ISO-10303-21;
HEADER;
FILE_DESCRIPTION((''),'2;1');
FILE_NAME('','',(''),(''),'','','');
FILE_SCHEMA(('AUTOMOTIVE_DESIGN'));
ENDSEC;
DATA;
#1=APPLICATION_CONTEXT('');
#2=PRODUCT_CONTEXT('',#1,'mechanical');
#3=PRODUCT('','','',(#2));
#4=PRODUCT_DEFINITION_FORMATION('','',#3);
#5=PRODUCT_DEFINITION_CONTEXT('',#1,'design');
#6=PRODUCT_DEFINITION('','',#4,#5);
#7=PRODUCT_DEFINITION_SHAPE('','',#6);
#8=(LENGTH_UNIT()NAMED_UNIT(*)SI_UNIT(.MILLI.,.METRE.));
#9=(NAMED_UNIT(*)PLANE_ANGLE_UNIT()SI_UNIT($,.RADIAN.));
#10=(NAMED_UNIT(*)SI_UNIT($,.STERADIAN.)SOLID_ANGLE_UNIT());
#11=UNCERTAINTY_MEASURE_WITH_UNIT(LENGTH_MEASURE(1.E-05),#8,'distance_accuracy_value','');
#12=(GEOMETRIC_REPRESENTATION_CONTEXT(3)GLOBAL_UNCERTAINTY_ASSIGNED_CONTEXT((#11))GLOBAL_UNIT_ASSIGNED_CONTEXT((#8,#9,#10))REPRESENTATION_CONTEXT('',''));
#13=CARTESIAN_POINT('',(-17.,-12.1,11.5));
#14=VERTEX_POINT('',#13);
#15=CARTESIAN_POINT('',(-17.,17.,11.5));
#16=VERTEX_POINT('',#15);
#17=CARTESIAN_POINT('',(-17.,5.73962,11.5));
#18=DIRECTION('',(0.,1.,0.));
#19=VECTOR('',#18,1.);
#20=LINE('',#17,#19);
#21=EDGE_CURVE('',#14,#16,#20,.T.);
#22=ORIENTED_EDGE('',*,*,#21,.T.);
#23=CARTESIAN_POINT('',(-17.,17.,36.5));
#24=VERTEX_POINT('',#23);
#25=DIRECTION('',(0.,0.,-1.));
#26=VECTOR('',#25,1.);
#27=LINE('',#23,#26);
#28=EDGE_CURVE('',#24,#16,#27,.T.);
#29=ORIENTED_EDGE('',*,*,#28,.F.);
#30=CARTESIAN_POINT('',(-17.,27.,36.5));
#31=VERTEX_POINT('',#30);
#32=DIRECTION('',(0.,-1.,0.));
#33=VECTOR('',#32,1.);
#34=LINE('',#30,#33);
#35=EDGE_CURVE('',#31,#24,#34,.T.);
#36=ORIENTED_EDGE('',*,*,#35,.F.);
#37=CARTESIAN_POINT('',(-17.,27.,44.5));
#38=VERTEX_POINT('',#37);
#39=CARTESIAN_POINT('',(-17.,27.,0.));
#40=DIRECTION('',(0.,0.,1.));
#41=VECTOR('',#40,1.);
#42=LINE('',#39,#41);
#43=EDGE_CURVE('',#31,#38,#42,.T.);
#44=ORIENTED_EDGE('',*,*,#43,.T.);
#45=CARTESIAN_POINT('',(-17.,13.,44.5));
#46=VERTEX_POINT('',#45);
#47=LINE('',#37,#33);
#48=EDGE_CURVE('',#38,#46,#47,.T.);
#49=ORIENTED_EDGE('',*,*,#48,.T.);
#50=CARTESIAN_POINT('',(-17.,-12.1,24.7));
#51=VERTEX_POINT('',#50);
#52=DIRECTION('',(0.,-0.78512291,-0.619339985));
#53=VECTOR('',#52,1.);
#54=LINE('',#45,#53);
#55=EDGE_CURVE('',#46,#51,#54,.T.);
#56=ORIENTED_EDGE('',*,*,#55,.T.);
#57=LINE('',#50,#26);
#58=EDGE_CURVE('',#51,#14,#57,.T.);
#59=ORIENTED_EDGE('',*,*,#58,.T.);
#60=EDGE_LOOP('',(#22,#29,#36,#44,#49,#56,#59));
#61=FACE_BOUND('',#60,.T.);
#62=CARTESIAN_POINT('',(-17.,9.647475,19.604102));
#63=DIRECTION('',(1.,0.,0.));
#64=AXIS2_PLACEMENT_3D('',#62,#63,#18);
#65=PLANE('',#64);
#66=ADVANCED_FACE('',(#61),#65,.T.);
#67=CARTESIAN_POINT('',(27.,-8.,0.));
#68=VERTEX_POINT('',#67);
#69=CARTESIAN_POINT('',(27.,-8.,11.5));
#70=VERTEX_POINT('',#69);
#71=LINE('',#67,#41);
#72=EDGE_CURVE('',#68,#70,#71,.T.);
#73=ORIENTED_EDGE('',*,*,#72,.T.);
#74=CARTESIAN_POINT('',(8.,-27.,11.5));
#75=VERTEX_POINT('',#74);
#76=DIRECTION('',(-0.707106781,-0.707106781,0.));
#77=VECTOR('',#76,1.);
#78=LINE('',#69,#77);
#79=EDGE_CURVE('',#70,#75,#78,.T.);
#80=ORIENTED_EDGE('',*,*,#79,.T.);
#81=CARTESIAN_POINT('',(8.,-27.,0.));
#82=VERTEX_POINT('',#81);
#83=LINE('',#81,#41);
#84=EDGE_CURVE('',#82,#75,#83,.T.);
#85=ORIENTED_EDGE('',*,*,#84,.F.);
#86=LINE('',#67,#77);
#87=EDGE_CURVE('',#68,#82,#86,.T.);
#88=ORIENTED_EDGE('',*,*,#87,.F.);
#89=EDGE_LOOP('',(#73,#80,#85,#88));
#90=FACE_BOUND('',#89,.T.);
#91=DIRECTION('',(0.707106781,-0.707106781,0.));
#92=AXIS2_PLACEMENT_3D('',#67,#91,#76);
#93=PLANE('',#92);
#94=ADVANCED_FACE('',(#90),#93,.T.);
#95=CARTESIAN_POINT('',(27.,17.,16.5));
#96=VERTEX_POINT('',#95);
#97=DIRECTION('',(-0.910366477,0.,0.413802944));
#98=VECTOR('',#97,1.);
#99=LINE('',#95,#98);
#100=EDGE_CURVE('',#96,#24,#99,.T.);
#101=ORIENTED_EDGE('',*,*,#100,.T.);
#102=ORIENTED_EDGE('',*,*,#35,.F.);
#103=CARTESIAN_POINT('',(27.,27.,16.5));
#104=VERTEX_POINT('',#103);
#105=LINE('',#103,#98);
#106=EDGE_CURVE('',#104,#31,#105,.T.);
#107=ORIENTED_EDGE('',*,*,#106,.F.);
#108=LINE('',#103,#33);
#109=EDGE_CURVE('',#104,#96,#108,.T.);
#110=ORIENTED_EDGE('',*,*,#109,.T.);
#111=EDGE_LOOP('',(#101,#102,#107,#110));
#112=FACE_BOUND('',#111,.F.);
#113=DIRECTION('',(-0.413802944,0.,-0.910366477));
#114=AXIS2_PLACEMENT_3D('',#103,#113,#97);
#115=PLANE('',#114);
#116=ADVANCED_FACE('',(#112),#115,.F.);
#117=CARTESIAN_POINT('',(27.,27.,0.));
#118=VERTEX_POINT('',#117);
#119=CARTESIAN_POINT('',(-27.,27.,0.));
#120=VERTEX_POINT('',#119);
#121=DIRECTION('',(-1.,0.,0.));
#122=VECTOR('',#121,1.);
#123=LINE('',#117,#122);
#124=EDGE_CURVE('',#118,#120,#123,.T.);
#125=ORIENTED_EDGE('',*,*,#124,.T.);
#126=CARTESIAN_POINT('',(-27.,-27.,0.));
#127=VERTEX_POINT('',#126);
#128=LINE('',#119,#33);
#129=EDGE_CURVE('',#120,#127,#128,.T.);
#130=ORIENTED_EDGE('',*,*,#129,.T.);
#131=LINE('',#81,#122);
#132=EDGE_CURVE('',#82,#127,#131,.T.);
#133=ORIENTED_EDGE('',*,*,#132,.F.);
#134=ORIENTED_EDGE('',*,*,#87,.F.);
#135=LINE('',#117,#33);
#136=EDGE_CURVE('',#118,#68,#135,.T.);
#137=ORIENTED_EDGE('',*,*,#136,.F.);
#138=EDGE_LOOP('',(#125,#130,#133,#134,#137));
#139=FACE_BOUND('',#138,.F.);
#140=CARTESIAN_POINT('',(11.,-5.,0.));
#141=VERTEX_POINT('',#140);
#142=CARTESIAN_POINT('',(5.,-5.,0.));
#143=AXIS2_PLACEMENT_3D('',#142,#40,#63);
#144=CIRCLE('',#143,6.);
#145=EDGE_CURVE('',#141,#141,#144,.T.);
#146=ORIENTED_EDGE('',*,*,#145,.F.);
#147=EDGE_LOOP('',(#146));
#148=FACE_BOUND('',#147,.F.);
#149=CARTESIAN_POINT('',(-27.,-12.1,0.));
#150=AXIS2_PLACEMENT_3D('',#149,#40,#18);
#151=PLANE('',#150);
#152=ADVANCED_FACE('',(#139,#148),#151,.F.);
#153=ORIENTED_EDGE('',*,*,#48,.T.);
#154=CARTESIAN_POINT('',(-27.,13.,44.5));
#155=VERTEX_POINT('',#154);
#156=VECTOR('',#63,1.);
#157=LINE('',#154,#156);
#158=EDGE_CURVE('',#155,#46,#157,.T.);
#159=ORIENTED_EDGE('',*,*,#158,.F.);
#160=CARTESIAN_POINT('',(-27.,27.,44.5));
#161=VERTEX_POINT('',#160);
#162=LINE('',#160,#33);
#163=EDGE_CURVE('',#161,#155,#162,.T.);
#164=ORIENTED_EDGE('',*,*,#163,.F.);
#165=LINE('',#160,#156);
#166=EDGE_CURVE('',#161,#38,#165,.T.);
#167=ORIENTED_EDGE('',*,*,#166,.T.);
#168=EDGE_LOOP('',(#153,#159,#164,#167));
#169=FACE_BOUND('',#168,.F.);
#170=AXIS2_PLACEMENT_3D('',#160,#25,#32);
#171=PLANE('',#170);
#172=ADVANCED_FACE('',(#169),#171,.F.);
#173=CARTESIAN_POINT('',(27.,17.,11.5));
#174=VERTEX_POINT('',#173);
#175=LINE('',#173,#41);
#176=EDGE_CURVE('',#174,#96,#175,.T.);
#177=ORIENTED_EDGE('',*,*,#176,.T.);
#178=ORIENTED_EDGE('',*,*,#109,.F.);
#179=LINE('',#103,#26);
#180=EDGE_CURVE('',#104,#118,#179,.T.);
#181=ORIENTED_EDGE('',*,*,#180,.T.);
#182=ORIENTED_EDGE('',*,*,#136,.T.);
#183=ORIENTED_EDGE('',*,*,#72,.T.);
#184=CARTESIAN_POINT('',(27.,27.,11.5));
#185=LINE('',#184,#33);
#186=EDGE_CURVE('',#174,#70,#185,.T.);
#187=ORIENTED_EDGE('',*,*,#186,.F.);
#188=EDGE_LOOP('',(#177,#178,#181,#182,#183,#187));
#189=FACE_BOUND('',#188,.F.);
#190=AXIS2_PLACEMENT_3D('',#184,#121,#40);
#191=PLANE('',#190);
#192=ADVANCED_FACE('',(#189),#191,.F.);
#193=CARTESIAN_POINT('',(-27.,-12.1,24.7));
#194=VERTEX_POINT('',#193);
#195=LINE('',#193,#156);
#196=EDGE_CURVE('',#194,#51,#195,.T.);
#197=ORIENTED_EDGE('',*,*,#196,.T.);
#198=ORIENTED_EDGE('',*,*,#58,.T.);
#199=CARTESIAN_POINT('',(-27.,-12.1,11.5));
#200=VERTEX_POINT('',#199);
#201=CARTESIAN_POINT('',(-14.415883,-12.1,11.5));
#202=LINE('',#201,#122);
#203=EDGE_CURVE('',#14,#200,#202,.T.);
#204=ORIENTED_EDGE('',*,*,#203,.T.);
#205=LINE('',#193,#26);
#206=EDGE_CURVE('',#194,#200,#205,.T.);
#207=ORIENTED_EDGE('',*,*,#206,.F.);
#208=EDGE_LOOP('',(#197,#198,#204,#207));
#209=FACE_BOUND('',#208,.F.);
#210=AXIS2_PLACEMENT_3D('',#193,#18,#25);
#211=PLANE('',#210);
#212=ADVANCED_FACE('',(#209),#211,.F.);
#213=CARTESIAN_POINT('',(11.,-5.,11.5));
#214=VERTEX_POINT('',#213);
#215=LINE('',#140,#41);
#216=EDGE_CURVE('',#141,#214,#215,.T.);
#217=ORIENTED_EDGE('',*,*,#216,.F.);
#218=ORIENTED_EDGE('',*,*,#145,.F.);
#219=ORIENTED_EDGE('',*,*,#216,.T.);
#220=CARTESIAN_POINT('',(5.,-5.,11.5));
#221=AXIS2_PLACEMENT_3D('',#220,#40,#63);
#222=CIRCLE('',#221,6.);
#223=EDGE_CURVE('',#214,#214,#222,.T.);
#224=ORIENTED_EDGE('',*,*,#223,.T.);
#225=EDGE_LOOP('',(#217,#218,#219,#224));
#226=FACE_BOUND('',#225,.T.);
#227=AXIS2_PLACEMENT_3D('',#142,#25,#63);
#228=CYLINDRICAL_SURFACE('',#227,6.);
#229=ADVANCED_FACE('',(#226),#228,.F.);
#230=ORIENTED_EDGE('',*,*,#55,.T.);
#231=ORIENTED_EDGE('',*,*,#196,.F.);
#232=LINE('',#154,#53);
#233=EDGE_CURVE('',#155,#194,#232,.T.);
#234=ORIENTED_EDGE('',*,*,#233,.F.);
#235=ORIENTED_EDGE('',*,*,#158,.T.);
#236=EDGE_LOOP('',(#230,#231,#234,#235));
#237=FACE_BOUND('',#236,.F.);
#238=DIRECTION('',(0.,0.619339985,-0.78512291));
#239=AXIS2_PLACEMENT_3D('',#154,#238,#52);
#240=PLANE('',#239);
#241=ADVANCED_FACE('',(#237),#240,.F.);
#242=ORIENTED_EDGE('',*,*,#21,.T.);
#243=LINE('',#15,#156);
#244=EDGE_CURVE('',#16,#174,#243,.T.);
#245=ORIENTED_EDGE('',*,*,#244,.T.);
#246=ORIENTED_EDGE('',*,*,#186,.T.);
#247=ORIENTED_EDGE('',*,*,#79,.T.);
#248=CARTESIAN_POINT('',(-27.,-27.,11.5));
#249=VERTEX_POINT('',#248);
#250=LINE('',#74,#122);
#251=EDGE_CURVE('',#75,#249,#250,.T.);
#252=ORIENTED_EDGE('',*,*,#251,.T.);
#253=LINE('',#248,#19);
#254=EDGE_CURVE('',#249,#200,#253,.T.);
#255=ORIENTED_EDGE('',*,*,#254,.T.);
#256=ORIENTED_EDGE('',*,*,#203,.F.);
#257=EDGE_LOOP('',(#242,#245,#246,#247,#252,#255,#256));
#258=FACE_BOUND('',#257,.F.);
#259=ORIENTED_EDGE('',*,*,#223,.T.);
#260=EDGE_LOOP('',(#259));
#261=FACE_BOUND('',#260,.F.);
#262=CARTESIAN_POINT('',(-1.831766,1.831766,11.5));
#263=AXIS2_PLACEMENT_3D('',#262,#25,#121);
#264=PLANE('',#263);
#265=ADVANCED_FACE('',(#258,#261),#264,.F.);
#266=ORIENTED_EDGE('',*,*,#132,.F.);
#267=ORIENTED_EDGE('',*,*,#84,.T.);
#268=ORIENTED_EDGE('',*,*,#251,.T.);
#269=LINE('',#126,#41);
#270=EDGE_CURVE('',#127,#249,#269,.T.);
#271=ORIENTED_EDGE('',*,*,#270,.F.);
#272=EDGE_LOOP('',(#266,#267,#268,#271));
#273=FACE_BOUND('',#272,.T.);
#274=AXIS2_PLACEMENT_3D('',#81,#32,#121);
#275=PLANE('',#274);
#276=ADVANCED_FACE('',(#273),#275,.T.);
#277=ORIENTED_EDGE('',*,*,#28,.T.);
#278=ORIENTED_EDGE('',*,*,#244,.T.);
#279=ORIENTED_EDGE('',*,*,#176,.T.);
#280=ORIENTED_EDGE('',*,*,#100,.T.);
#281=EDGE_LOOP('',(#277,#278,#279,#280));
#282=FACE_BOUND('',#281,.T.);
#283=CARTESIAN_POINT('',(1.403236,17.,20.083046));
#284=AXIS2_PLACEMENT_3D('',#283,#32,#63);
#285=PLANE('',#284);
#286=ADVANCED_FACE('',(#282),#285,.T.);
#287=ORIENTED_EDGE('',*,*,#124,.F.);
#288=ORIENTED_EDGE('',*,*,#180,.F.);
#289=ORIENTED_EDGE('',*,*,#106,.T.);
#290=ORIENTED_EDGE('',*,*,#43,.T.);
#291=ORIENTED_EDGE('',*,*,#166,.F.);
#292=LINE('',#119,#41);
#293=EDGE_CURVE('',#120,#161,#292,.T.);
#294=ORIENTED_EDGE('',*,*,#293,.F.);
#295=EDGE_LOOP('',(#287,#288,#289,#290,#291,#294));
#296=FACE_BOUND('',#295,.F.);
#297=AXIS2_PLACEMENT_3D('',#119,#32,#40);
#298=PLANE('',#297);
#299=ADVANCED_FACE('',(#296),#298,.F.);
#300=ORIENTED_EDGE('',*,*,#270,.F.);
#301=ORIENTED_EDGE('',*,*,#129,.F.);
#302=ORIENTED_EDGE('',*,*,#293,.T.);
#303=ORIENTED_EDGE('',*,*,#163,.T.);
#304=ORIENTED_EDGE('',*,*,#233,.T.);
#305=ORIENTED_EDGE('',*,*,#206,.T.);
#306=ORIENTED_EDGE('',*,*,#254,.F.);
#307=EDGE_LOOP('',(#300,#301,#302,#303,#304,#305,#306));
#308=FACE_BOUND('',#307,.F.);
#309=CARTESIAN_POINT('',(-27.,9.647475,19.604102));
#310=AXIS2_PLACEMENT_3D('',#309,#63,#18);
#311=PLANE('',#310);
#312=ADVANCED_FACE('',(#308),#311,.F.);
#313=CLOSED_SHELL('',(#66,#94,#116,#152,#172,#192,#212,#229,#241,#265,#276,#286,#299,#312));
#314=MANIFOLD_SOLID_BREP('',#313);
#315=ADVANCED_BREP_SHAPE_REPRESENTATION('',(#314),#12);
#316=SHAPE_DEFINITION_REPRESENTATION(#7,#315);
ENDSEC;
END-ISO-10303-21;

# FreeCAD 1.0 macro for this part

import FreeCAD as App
import Part
import Sketcher


def add_polygon(sketch, points):
    """Adds a closed chain of lines whose ends are joined by coincident constraints."""
    first, n = sketch.GeometryCount, len(points)
    for a, b in zip(points, points[1:] + points[:1]):
        sketch.addGeometry(Part.LineSegment(App.Vector(*a, 0), App.Vector(*b, 0)), False)
    for i in range(n):
        sketch.addConstraint(Sketcher.Constraint("Coincident", first + i, 2, first + (i + 1) % n, 1))

doc = App.newDocument("Part")
body = doc.addObject("PartDesign::Body", "Body")

sketch1 = body.newObject("Sketcher::SketchObject", "Sketch")
sketch1.AttachmentSupport = (doc.getObject("YZ_Plane"), [""])
sketch1.MapMode = "FlatFace"
sketch1.AttachmentOffset = App.Placement(App.Vector(0, 0, -27), App.Rotation())
add_polygon(sketch1, [(27, 0), (27, 44.5), (13, 44.5), (-12.1, 24.7), (-12.1, 0)])
sketch1.addConstraint([
    Sketcher.Constraint("Vertical", 0),
    Sketcher.Constraint("Horizontal", 1),
    Sketcher.Constraint("Vertical", 3),
    Sketcher.Constraint("Horizontal", 4),
    Sketcher.Constraint("PointOnObject", 3, 2, -1),
    Sketcher.Constraint("DistanceX", 1, 2, 1, 1, 14.0),
    Sketcher.Constraint("DistanceX", 4, 1, 4, 2, 39.1),
    Sketcher.Constraint("DistanceY", 0, 1, 0, 2, 44.5),
    Sketcher.Constraint("DistanceY", 3, 2, 3, 1, 24.7),
    Sketcher.Constraint("DistanceX", -1, 1, 0, 2, 27.0),
])
pad1 = body.newObject("PartDesign::Pad", "Pad")
pad1.Profile = sketch1
pad1.Length = 10
body2 = doc.addObject("PartDesign::Body", "Body001")

sketch2 = body2.newObject("Sketcher::SketchObject", "Sketch001")
sketch2.AttachmentSupport = (doc.getObject("XY_Plane001"), [""])
sketch2.MapMode = "FlatFace"
add_polygon(sketch2, [(27, 27), (-27, 27), (-27, -27), (8, -27), (27, -8)])
sketch2.addGeometry(Part.Circle(App.Vector(5, -5, 0), App.Vector(0, 0, 1), 6), False)
sketch2.addConstraint([
    Sketcher.Constraint("Horizontal", 0),
    Sketcher.Constraint("Vertical", 1),
    Sketcher.Constraint("Horizontal", 2),
    Sketcher.Constraint("Vertical", 4),
    Sketcher.Constraint("Symmetric", 1, 2, 4, 2, -1, 1),
    Sketcher.Constraint("Equal", 0, 1),
    Sketcher.Constraint("Equal", 2, 4),
    Sketcher.Constraint("Diameter", 5, 12.0),
    Sketcher.Constraint("DistanceX", 0, 2, 0, 1, 54.0),
    Sketcher.Constraint("DistanceX", 2, 1, 2, 2, 35.0),
    Sketcher.Constraint("DistanceX", -1, 1, 5, 3, 5.0),
    Sketcher.Constraint("DistanceY", 5, 3, -1, 1, 5.0),
])
pad2 = body2.newObject("PartDesign::Pad", "Pad001")
pad2.Profile = sketch2
pad2.Length = 11.5
body3 = doc.addObject("PartDesign::Body", "Body002")

sketch3 = body3.newObject("Sketcher::SketchObject", "Sketch002")
sketch3.AttachmentSupport = (doc.getObject("XZ_Plane002"), [""])
sketch3.MapMode = "FlatFace"
sketch3.AttachmentOffset = App.Placement(App.Vector(0, 0, -27), App.Rotation())
add_polygon(sketch3, [(27, 11.5), (27, 16.5), (-17, 36.5), (-17, 11.5)])
sketch3.addConstraint([
    Sketcher.Constraint("Vertical", 0),
    Sketcher.Constraint("Vertical", 2),
    Sketcher.Constraint("Horizontal", 3),
    Sketcher.Constraint("DistanceX", 3, 1, 3, 2, 44.0),
    Sketcher.Constraint("DistanceY", 0, 1, 0, 2, 5.0),
    Sketcher.Constraint("DistanceY", 2, 2, 2, 1, 25.0),
    Sketcher.Constraint("DistanceX", -1, 1, 0, 2, 27.0),
    Sketcher.Constraint("DistanceY", -1, 1, 0, 2, 16.5),
])
pad3 = body3.newObject("PartDesign::Pad", "Pad002")
pad3.Profile = sketch3
pad3.Length = 10
doc.recompute()

boolean = body3.newObject("PartDesign::Boolean", "Boolean")
boolean.Type = "Fuse"
boolean.addObjects([body])
doc.recompute()

boolean2 = body3.newObject("PartDesign::Boolean", "Boolean001")
boolean2.Type = "Fuse"
boolean2.addObjects([body2])

doc.recompute()
